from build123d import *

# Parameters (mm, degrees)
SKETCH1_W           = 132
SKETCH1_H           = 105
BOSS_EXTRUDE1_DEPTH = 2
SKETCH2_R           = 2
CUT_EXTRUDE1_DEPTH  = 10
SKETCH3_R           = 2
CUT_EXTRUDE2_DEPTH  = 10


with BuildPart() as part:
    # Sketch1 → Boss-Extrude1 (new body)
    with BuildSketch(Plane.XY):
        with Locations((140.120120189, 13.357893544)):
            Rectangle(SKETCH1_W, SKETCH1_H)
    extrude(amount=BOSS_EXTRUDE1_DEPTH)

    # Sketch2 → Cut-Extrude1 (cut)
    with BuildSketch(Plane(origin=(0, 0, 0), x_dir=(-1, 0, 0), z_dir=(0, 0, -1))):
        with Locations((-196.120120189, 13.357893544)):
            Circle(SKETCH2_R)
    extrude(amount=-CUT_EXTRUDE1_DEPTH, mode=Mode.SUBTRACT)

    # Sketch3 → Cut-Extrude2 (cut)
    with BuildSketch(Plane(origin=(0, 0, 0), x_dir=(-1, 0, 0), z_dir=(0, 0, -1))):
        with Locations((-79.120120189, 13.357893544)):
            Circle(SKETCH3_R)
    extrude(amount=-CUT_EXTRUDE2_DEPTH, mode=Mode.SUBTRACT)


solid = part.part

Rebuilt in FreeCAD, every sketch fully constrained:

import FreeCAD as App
import Part
import Sketcher
from FreeCAD import Vector


def add_polygon(sketch, points):
    """Adds a closed chain of lines whose ends are joined by coincident constraints."""
    first, n = sketch.GeometryCount, len(points)
    for a, b in zip(points, points[1:] + points[:1]):
        sketch.addGeometry(Part.LineSegment(App.Vector(*a, 0), App.Vector(*b, 0)), False)
    for i in range(n):
        sketch.addConstraint(Sketcher.Constraint("Coincident", first + i, 2, first + (i + 1) % n, 1))

doc = App.newDocument("Part")
body = doc.addObject("PartDesign::Body", "Body")

# Sketch on XY plane
sketch1 = body.newObject("Sketcher::SketchObject", "Sketch")
sketch1.AttachmentSupport = (doc.getObject("XY_Plane"), [""])
sketch1.MapMode = "FlatFace"
add_polygon(sketch1, [(74, 66), (74, -39), (206, -39), (206, 66)])  # lines 0-3
sketch1.addConstraint([
    Sketcher.Constraint("Vertical", 0),
    Sketcher.Constraint("Horizontal", 1),
    Sketcher.Constraint("Vertical", 2),
    Sketcher.Constraint("Horizontal", 3),
    Sketcher.Constraint("DistanceX", 1, 1, 1, 2, 132.0),
    Sketcher.Constraint("DistanceY", 0, 2, 0, 1, 105.0),
    Sketcher.Constraint("DistanceX", -1, 1, 0, 2, 74.12012),
    Sketcher.Constraint("DistanceY", 0, 2, -1, 1, 39.142106),
])
pad1 = body.newObject("PartDesign::Pad", "Pad")
pad1.Profile = sketch1
pad1.Length = 2

# Sketch on XY plane
sketch2 = body.newObject("Sketcher::SketchObject", "Sketch001")
sketch2.AttachmentSupport = (doc.getObject("XY_Plane"), [""])
sketch2.MapMode = "FlatFace"
sketch2.addGeometry(Part.Circle(Vector(196.1, 13.4, 0), Vector(0, 0, 1), 2), False)
sketch2.addConstraint([
    Sketcher.Constraint("Diameter", 0, 4.0),
    Sketcher.Constraint("DistanceX", -1, 1, 0, 3, 196.12012),
    Sketcher.Constraint("DistanceY", -1, 1, 0, 3, 13.357894),
])
pocket1 = body.newObject("PartDesign::Pocket", "Pocket")
pocket1.Profile = sketch2
pocket1.Length = 10
pocket1.Reversed = True

# Sketch on XY plane
sketch3 = body.newObject("Sketcher::SketchObject", "Sketch002")
sketch3.AttachmentSupport = (doc.getObject("XY_Plane"), [""])
sketch3.MapMode = "FlatFace"
sketch3.addGeometry(Part.Circle(Vector(79.1, 13.4, 0), Vector(0, 0, 1), 2), False)
sketch3.addConstraint([
    Sketcher.Constraint("Diameter", 0, 4.0),
    Sketcher.Constraint("DistanceX", -1, 1, 0, 3, 79.12012),
    Sketcher.Constraint("DistanceY", -1, 1, 0, 3, 13.357894),
])
pocket2 = body.newObject("PartDesign::Pocket", "Pocket001")
pocket2.Profile = sketch3
pocket2.Length = 10
pocket2.Reversed = True

doc.recompute()
